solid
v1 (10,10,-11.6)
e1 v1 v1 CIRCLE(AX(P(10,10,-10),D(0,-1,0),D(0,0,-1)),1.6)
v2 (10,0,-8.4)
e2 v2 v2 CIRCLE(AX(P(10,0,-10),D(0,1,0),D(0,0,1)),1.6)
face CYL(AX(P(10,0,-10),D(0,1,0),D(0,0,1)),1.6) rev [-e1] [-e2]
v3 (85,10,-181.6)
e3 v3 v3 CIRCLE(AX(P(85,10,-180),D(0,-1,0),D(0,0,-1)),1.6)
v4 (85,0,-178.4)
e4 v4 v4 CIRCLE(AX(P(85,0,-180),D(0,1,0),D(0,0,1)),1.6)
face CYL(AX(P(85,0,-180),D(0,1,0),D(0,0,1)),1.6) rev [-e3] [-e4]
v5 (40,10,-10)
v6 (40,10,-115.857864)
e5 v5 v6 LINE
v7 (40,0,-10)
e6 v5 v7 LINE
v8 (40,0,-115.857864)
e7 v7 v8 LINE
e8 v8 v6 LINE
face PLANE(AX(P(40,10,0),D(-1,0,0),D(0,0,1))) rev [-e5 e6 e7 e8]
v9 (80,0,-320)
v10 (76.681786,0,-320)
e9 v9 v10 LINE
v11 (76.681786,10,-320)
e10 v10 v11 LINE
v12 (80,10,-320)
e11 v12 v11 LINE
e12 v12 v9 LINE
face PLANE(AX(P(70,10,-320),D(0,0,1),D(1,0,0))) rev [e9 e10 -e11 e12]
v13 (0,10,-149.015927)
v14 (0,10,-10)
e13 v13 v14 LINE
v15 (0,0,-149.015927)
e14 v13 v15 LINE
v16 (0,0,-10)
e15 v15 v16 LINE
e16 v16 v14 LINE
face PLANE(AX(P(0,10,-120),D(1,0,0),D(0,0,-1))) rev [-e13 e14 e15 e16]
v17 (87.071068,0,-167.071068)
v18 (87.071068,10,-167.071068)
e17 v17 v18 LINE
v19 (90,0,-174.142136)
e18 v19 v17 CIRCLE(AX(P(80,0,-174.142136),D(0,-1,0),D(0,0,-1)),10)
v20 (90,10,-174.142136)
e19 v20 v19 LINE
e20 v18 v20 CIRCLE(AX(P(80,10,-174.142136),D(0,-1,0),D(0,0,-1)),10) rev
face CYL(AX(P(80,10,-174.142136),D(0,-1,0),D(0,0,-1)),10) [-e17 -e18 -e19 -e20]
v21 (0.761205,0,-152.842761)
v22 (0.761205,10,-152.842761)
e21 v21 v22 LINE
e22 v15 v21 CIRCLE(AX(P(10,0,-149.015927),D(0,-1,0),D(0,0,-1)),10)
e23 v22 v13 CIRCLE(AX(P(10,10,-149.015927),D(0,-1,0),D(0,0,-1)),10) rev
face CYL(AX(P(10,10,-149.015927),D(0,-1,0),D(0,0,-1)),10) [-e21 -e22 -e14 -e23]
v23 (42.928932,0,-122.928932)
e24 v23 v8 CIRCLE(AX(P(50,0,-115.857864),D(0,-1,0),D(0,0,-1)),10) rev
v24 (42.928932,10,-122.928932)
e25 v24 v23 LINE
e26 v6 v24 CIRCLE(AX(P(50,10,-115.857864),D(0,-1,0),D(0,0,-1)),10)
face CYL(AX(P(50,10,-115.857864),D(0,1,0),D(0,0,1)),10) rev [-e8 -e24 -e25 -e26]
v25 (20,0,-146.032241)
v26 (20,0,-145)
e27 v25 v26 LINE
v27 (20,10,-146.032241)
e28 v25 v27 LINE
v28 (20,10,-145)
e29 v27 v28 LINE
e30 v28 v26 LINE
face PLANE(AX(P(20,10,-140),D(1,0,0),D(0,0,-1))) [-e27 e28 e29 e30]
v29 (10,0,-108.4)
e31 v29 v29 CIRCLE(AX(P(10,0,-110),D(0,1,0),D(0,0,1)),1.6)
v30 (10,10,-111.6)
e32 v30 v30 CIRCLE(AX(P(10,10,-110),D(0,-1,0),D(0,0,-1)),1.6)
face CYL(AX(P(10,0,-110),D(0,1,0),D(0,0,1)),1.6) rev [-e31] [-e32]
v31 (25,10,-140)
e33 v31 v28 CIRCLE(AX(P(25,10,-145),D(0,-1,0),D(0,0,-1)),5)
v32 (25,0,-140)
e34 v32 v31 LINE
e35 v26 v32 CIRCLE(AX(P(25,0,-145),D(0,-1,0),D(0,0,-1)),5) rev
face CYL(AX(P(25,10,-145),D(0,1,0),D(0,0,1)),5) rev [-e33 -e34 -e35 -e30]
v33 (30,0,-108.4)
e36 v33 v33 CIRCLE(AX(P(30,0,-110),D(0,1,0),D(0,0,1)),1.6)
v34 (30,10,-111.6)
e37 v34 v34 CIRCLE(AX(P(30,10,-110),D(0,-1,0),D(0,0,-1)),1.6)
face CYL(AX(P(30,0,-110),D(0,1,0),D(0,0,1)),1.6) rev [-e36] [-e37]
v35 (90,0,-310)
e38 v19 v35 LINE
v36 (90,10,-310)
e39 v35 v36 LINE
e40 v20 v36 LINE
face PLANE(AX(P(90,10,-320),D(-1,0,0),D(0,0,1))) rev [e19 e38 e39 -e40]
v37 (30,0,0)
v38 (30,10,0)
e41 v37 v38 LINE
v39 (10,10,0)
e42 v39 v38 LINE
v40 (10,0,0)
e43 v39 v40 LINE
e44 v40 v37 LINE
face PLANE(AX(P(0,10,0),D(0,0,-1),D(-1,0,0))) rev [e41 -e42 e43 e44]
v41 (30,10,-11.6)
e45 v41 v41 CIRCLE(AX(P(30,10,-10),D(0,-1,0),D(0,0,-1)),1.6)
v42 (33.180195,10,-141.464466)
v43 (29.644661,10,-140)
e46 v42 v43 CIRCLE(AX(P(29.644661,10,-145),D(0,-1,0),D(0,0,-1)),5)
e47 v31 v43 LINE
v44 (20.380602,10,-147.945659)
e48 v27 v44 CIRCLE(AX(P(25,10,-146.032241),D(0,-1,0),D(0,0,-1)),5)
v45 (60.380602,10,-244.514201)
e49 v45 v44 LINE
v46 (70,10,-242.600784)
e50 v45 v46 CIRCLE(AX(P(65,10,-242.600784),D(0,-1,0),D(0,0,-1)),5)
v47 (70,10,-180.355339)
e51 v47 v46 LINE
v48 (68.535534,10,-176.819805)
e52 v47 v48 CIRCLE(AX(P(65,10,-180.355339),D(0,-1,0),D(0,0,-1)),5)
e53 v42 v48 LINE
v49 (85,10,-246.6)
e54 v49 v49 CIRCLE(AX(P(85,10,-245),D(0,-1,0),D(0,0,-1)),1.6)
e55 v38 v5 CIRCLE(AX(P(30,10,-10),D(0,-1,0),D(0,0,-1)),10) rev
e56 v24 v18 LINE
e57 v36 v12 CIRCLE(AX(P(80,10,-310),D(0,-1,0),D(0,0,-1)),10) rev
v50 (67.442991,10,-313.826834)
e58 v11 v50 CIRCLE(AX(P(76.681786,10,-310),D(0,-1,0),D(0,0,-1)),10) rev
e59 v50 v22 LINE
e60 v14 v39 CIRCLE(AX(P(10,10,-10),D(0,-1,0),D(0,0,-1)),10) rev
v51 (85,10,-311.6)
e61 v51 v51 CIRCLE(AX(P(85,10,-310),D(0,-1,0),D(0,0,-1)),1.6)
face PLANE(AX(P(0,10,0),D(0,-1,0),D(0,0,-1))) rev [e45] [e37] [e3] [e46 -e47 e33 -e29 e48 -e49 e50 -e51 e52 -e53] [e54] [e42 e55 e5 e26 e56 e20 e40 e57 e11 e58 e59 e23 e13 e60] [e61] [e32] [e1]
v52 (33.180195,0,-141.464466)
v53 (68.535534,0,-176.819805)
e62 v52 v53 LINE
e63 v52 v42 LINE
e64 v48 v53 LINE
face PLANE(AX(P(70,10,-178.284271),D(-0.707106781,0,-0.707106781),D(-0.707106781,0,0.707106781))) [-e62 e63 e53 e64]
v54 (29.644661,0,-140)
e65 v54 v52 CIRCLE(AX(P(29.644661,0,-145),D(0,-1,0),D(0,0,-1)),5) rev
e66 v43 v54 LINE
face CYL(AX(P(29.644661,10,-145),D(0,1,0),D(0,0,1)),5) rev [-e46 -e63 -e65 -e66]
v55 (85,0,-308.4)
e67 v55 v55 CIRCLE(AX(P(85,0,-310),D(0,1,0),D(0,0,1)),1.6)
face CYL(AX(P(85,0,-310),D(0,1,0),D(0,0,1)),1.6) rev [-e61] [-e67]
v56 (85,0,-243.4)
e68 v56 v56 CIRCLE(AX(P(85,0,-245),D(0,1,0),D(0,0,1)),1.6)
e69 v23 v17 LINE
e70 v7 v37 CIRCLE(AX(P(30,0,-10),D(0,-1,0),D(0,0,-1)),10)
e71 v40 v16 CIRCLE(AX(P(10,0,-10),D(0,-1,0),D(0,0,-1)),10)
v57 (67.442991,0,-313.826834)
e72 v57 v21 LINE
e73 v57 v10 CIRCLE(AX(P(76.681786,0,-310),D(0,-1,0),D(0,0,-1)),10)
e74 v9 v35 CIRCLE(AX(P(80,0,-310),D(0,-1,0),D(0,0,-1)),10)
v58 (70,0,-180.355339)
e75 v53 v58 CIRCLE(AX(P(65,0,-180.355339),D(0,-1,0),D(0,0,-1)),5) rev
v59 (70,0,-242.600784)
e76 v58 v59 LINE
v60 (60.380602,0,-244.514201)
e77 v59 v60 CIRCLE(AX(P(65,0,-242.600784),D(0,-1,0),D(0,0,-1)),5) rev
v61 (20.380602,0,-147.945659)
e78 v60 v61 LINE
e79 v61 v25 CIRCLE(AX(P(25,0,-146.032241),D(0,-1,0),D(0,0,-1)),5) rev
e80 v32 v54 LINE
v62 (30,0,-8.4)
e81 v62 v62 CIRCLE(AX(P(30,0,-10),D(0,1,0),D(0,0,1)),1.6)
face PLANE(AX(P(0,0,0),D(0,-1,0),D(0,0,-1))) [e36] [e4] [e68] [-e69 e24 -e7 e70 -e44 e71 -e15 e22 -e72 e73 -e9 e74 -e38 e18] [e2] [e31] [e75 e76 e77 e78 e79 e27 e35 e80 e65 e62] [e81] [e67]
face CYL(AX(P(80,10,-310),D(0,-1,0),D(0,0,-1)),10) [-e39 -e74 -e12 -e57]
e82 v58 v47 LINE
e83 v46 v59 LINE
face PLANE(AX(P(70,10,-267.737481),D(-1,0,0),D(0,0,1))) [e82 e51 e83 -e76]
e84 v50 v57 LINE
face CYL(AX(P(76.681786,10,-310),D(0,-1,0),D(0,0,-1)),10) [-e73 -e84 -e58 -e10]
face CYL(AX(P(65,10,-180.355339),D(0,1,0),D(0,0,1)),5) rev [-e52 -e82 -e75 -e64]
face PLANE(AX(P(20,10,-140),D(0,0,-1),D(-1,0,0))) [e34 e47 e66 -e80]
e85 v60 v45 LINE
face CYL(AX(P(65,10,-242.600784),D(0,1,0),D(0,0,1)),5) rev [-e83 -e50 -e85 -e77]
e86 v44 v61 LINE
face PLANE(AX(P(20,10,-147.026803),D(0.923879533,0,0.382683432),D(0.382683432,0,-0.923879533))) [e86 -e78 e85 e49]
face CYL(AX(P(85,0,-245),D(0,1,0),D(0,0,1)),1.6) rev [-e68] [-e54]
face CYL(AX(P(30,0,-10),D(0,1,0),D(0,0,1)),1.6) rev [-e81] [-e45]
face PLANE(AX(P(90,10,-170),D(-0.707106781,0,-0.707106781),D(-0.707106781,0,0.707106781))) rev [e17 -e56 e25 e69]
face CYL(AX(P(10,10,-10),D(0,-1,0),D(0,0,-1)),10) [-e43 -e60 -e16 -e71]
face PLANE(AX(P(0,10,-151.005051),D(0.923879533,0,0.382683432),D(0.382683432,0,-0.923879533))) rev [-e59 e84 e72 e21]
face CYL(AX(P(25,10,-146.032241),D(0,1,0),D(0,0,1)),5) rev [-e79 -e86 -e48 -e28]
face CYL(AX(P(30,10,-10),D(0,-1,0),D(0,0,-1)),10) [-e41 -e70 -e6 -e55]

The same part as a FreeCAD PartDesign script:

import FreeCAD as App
import Part
import Sketcher
from FreeCAD import Vector
Q = App.Units.Quantity


def edges_at(feature, points):
    """Names of the edges that pass closest to the given points."""
    edges = feature.Shape.Edges
    near = lambda p: min(range(len(edges)), key=lambda i: edges[i].distToShape(Part.Vertex(*p))[0])
    return sorted({f"Edge{near(p) + 1}" for p in points})


def add_polygon(sketch, points):
    """Adds a closed chain of lines whose ends are joined by coincident constraints."""
    first, n = sketch.GeometryCount, len(points)
    for a, b in zip(points, points[1:] + points[:1]):
        sketch.addGeometry(Part.LineSegment(App.Vector(*a, 0), App.Vector(*b, 0)), False)
    for i in range(n):
        sketch.addConstraint(Sketcher.Constraint("Coincident", first + i, 2, first + (i + 1) % n, 1))

doc = App.newDocument("Part")
body = doc.addObject("PartDesign::Body", "Body")

# Sketch on XZ plane
sketch1 = doc.addObject("Sketcher::SketchObject", "Sketch")
body.addObject(sketch1)
sketch1.AttachmentSupport = (doc.XZ_Plane, [""])
sketch1.MapMode = "FlatFace"
add_polygon(sketch1, [(0, -151), (0, 0), (40, 0), (40, -120), (90, -170), (90, -320), (70, -320)])  # lines 0-6
add_polygon(sketch1, [(20, -147), (70, -268), (70, -178), (32, -140), (20, -140)])  # lines 7-11
sketch1.addConstraint([
    Sketcher.Constraint("Vertical", 0),
    Sketcher.Constraint("Horizontal", 1),
    Sketcher.Constraint("Vertical", 2),
    Sketcher.Constraint("Vertical", 4),
    Sketcher.Constraint("Horizontal", 5),
    Sketcher.Constraint("Vertical", 8),
    Sketcher.Constraint("Horizontal", 10),
    Sketcher.Constraint("Vertical", 11),
    Sketcher.Constraint("Coincident", 0, 2, -1, 1),
    Sketcher.Constraint("Parallel", 6, 7),
    Sketcher.Constraint("Parallel", 3, 9),
    Sketcher.Constraint("Vertical", 5, 2, 7, 2),
    Sketcher.Constraint("DistanceX", 1, 1, 1, 2, Q("40 mm")),
    Sketcher.Constraint("DistanceX", 5, 2, 5, 1, Q("20 mm")),
    Sketcher.Constraint("DistanceY", 2, 2, 2, 1, Q("120 mm")),
    Sketcher.Constraint("DistanceY", 4, 2, 4, 1, Q("150 mm")),
    Sketcher.Constraint("Angle", 3, Q("-45 deg")),
    Sketcher.Constraint("DistanceX", -1, 1, 3, 2, Q("90 mm")),
    Sketcher.Constraint("DistanceY", 9, 2, -1, 1, Q("140 mm")),
    Sketcher.Constraint("DistanceX", -1, 1, 10, 2, Q("20 mm")),
    Sketcher.Constraint("Angle", 6, Q("112.5 deg")),
    Sketcher.Constraint("DistanceX", 10, 2, 10, 1, Q("11.715729 mm")),
    Sketcher.Constraint("DistanceY", 8, 1, 8, 2, Q("89.45321 mm")),
])
pad1 = doc.addObject("PartDesign::Pad", "Pad")
body.addObject(pad1)
pad1.Profile = sketch1
pad1.Length = 10
pad1.Reversed = True

# Sketch on XZ plane
sketch2 = doc.addObject("Sketcher::SketchObject", "Sketch001")
body.addObject(sketch2)
sketch2.AttachmentSupport = (doc.XZ_Plane, [""])
sketch2.MapMode = "FlatFace"
sketch2.AttachmentOffset = App.Placement(Vector(0, 0, -10), App.Rotation())
sketch2.addGeometry([
    Part.Circle(Vector(10, -110, 0), Vector(0, 0, 1), 1.6),
    Part.Circle(Vector(30, -110, 0), Vector(0, 0, 1), 1.6),
    Part.Circle(Vector(10, -10, 0), Vector(0, 0, 1), 1.6),
    Part.Circle(Vector(30, -10, 0), Vector(0, 0, 1), 1.6),
], False)
sketch2.addConstraint([
    Sketcher.Constraint("Equal", 0, 1),
    Sketcher.Constraint("Equal", 1, 2),
    Sketcher.Constraint("Equal", 2, 3),
    Sketcher.Constraint("Horizontal", 0, 3, 1, 3),
    Sketcher.Constraint("Horizontal", 2, 3, 3, 3),
    Sketcher.Constraint("Vertical", 0, 3, 2, 3),
    Sketcher.Constraint("Vertical", 1, 3, 3, 3),
    Sketcher.Constraint("Diameter", 0, Q("3.2 mm")),
    Sketcher.Constraint("DistanceX", -1, 1, 0, 3, Q("10 mm")),
    Sketcher.Constraint("DistanceY", 0, 3, -1, 1, Q("110 mm")),
    Sketcher.Constraint("DistanceX", -1, 1, 1, 3, Q("30 mm")),
    Sketcher.Constraint("DistanceY", 2, 3, -1, 1, Q("10 mm")),
])
pocket1 = doc.addObject("PartDesign::Pocket", "Pocket")
body.addObject(pocket1)
pocket1.Profile = sketch2
pocket1.Type = "ThroughAll"
pocket1.Midplane = True
doc.recompute()

fillet = doc.addObject("PartDesign::Fillet", "Fillet")
body.addObject(fillet)
fillet.Base = (pocket1, edges_at(pocket1, [
    (20, 5, -147.027),
    (20, 5, -140),
    (31.716, 5, -140),
    (70, 5, -178.284),
    (70, 5, -267.737),
]))
fillet.Radius = 5

# Sketch on XZ plane
sketch3 = doc.addObject("Sketcher::SketchObject", "Sketch002")
body.addObject(sketch3)
sketch3.AttachmentSupport = (doc.XZ_Plane, [""])
sketch3.MapMode = "FlatFace"
sketch3.AttachmentOffset = App.Placement(Vector(0, 0, -10), App.Rotation())
sketch3.addGeometry([
    Part.Circle(Vector(85, -310, 0), Vector(0, 0, 1), 1.6),
    Part.Circle(Vector(85, -245, 0), Vector(0, 0, 1), 1.6),
    Part.Circle(Vector(85, -180, 0), Vector(0, 0, 1), 1.6),
], False)
sketch3.addConstraint([
    Sketcher.Constraint("Equal", 0, 1),
    Sketcher.Constraint("Equal", 1, 2),
    Sketcher.Constraint("Vertical", 0, 3, 1, 3),
    Sketcher.Constraint("Vertical", 1, 3, 2, 3),
    Sketcher.Constraint("Diameter", 0, Q("3.2 mm")),
    Sketcher.Constraint("DistanceX", -1, 1, 0, 3, Q("85 mm")),
    Sketcher.Constraint("DistanceY", 0, 3, -1, 1, Q("310 mm")),
    Sketcher.Constraint("DistanceY", 1, 3, -1, 1, Q("245 mm")),
    Sketcher.Constraint("DistanceY", 2, 3, -1, 1, Q("180 mm")),
])
pocket2 = doc.addObject("PartDesign::Pocket", "Pocket001")
body.addObject(pocket2)
pocket2.Profile = sketch3
pocket2.Type = "ThroughAll"
pocket2.Midplane = True
doc.recompute()

fillet2 = doc.addObject("PartDesign::Fillet", "Fillet001")
body.addObject(fillet2)
fillet2.Base = (pocket2, edges_at(pocket2, [
    (0, 5, -151.005),
    (70, 5, -320),
    (90, 5, -320),
    (90, 5, -170),
    (40, 5, -120),
    (40, 5, 0),
    (0, 5, 0),
]))
fillet2.Radius = 10

doc.recompute()
